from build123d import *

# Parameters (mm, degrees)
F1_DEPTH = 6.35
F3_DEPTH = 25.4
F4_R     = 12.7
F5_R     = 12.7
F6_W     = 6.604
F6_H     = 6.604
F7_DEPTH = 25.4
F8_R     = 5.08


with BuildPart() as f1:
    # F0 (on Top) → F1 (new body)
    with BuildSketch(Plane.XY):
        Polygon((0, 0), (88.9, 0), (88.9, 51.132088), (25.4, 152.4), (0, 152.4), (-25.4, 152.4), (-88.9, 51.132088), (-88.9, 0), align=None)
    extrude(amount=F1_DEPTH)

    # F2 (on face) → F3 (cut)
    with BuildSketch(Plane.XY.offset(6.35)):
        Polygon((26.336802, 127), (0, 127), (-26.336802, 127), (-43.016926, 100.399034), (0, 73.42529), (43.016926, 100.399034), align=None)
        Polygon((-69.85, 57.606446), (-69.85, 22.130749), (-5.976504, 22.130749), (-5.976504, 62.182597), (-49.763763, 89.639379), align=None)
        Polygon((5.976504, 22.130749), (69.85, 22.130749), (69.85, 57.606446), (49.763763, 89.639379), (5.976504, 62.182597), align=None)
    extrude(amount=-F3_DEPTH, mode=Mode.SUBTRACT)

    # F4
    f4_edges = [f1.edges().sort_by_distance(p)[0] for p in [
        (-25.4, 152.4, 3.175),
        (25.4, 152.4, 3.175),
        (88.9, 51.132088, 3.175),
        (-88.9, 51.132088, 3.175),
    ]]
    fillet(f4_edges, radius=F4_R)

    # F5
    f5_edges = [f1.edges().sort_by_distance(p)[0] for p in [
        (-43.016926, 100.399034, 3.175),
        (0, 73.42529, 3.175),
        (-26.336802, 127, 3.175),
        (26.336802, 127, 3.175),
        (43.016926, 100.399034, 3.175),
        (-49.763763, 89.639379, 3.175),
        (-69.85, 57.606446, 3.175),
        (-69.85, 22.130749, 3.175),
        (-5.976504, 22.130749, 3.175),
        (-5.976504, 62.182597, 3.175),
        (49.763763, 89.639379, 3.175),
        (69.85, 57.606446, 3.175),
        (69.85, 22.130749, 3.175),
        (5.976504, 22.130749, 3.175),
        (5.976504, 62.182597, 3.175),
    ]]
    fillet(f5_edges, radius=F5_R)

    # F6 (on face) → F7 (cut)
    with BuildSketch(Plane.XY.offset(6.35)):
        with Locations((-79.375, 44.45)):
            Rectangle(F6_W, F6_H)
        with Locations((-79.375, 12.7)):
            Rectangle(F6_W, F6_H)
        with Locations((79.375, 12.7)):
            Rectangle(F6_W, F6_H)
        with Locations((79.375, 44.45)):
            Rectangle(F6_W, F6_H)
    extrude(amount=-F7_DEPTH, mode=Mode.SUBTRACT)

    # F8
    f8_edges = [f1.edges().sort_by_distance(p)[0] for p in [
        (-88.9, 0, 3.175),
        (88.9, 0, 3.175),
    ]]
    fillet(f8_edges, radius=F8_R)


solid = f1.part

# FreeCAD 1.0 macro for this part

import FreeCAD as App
import Part
import Sketcher

V = App.Vector
Q = App.Units.Quantity


def edges_at(feature, points):
    """Names of the edges that pass closest to the given points."""
    edges = feature.Shape.Edges
    near = lambda p: min(range(len(edges)), key=lambda i: edges[i].distToShape(Part.Vertex(*p))[0])
    return sorted({f"Edge{near(p) + 1}" for p in points})

doc = App.newDocument("Part")
body = doc.addObject("PartDesign::Body", "Body")

# Sketch on XY plane
sketch1 = body.newObject("Sketcher::SketchObject", "Sketch")
sketch1.AttachmentSupport = (doc.getObject("XY_Plane"), [""])
sketch1.MapMode = "FlatFace"
sketch1.addGeometry([
    Part.LineSegment(V(89, 0, 0), V(89, 51, 0)),  # 0
    Part.LineSegment(V(89, 51, 0), V(25, 152, 0)),  # 1
    Part.LineSegment(V(25, 152, 0), V(-25, 152, 0)),  # 2
    Part.LineSegment(V(-25, 152, 0), V(-89, 51, 0)),  # 3
    Part.LineSegment(V(-89, 51, 0), V(-89, 0, 0)),  # 4
    Part.LineSegment(V(-89, 0, 0), V(89, 0, 0)),  # 5
], False)
sketch1.addConstraint([
    Sketcher.Constraint("Coincident", 0, 2, 1, 1),
    Sketcher.Constraint("Coincident", 1, 2, 2, 1),
    Sketcher.Constraint("Coincident", 2, 2, 3, 1),
    Sketcher.Constraint("Coincident", 3, 2, 4, 1),
    Sketcher.Constraint("Coincident", 4, 2, 5, 1),
    Sketcher.Constraint("Coincident", 5, 2, 0, 1),
    Sketcher.Constraint("Vertical", 0),
    Sketcher.Constraint("Horizontal", 2),
    Sketcher.Constraint("Vertical", 4),
    Sketcher.Constraint("Horizontal", 5),
    Sketcher.Constraint("Symmetric", 4, 2, 5, 2, -1, 1),
    Sketcher.Constraint("Horizontal", 0, 2, 3, 2),
    Sketcher.Constraint("Equal", 1, 3),
    Sketcher.Constraint("DistanceX", 2, 2, 2, 1, Q("2 in")),
    Sketcher.Constraint("DistanceX", 5, 1, 5, 2, Q("7 in")),
    Sketcher.Constraint("DistanceY", -1, 1, 1, 2, Q("6 in")),
    Sketcher.Constraint("DistanceY", 0, 1, 0, 2, 51.132088),
])
pad1 = body.newObject("PartDesign::Pad", "Pad")
pad1.Profile = sketch1
pad1.Length = Q("0.25 in")

# Sketch on XY plane
sketch2 = body.newObject("Sketcher::SketchObject", "Sketch001")
sketch2.AttachmentSupport = (doc.getObject("XY_Plane"), [""])
sketch2.MapMode = "FlatFace"
sketch2.AttachmentOffset = App.Placement(V(0, 0, 0.25 * 25.4), App.Rotation())
sketch2.addGeometry([
    Part.LineSegment(V(26, 127, 0), V(-26, 127, 0)),  # 0
    Part.LineSegment(V(-26, 127, 0), V(-43, 100, 0)),  # 1
    Part.LineSegment(V(-43, 100, 0), V(0, 73, 0)),  # 2
    Part.LineSegment(V(0, 73, 0), V(43, 100, 0)),  # 3
    Part.LineSegment(V(43, 100, 0), V(26, 127, 0)),  # 4
    Part.LineSegment(V(-70, 58, 0), V(-70, 22, 0)),  # 5
    Part.LineSegment(V(-70, 22, 0), V(-6, 22, 0)),  # 6
    Part.LineSegment(V(-6, 22, 0), V(-6, 62, 0)),  # 7
    Part.LineSegment(V(-6, 62, 0), V(-50, 90, 0)),  # 8
    Part.LineSegment(V(-50, 90, 0), V(-70, 58, 0)),  # 9
    Part.LineSegment(V(6, 22, 0), V(70, 22, 0)),  # 10
    Part.LineSegment(V(70, 22, 0), V(70, 58, 0)),  # 11
    Part.LineSegment(V(70, 58, 0), V(50, 90, 0)),  # 12
    Part.LineSegment(V(50, 90, 0), V(6, 62, 0)),  # 13
    Part.LineSegment(V(6, 62, 0), V(6, 22, 0)),  # 14
], False)
sketch2.addConstraint([
    Sketcher.Constraint("Coincident", 0, 2, 1, 1),
    Sketcher.Constraint("Coincident", 1, 2, 2, 1),
    Sketcher.Constraint("Coincident", 2, 2, 3, 1),
    Sketcher.Constraint("Coincident", 3, 2, 4, 1),
    Sketcher.Constraint("Coincident", 4, 2, 0, 1),
    Sketcher.Constraint("Coincident", 5, 2, 6, 1),
    Sketcher.Constraint("Coincident", 6, 2, 7, 1),
    Sketcher.Constraint("Coincident", 7, 2, 8, 1),
    Sketcher.Constraint("Coincident", 8, 2, 9, 1),
    Sketcher.Constraint("Coincident", 9, 2, 5, 1),
    Sketcher.Constraint("Coincident", 10, 2, 11, 1),
    Sketcher.Constraint("Coincident", 11, 2, 12, 1),
    Sketcher.Constraint("Coincident", 12, 2, 13, 1),
    Sketcher.Constraint("Coincident", 13, 2, 14, 1),
    Sketcher.Constraint("Coincident", 14, 2, 10, 1),
    Sketcher.Constraint("Horizontal", 0),
    Sketcher.Constraint("Vertical", 5),
    Sketcher.Constraint("Horizontal", 6),
    Sketcher.Constraint("Vertical", 7),
    Sketcher.Constraint("Horizontal", 10),
    Sketcher.Constraint("Vertical", 11),
    Sketcher.Constraint("Vertical", 14),
    Sketcher.Constraint("Symmetric", 1, 2, 3, 2, -2),
    Sketcher.Constraint("Symmetric", 5, 2, 10, 2, -2),
    Sketcher.Constraint("Symmetric", 8, 2, 12, 2, -2),
    Sketcher.Constraint("Symmetric", 7, 2, 13, 2, -2),
    Sketcher.Constraint("PointOnObject", 2, 2, -2),
    Sketcher.Constraint("Perpendicular", 1, 2),
    Sketcher.Constraint("Perpendicular", 3, 4),
    Sketcher.Constraint("Parallel", 2, 8),
    Sketcher.Constraint("Perpendicular", 8, 9),
    Sketcher.Constraint("Parallel", 4, 12),
    Sketcher.Constraint("DistanceY", -1, 1, 0, 2, Q("5 in")),
    Sketcher.Constraint("DistanceX", 5, 2, -1, 1, Q("2.75 in")),
    Sketcher.Constraint("Distance", 9, 37.809598),
    Sketcher.Constraint("DistanceX", 0, 2, -1, 1, 26.336802),
    Sketcher.Constraint("DistanceX", 0, 2, 6, 2, 20.360298),
    Sketcher.Constraint("Distance", 2, 50.774391),
    Sketcher.Constraint("DistanceY", 5, 2, 5, 1, 35.475697),
    Sketcher.Constraint("DistanceY", 7, 1, 7, 2, 40.051848),
    Sketcher.Constraint("DistanceY", -1, 1, 5, 2, 22.130749),
])
pocket1 = body.newObject("PartDesign::Pocket", "Pocket")
pocket1.Profile = sketch2
pocket1.Length = Q("1 in")
doc.recompute()

fillet = body.newObject("PartDesign::Fillet", "Fillet")
fillet.Base = (pocket1, edges_at(pocket1, [
    (-25.4, 152.4, 3.175),
    (25.4, 152.4, 3.175),
    (88.9, 51.132, 3.175),
    (-88.9, 51.132, 3.175),
]))
fillet.Radius = Q("0.5 in")
doc.recompute()

fillet2 = body.newObject("PartDesign::Fillet", "Fillet001")
fillet2.Base = (fillet, edges_at(fillet, [
    (-43.017, 100.399, 3.175),
    (0, 73.425, 3.175),
    (-26.337, 127, 3.175),
    (26.337, 127, 3.175),
    (43.017, 100.399, 3.175),
    (-49.764, 89.639, 3.175),
    (-69.85, 57.606, 3.175),
    (-69.85, 22.131, 3.175),
    (-5.977, 22.131, 3.175),
    (-5.977, 62.183, 3.175),
    (49.764, 89.639, 3.175),
    (69.85, 57.606, 3.175),
    (69.85, 22.131, 3.175),
    (5.977, 22.131, 3.175),
    (5.977, 62.183, 3.175),
]))
fillet2.Radius = Q("0.5 in")

# Sketch on XY plane
sketch3 = body.newObject("Sketcher::SketchObject", "Sketch002")
sketch3.AttachmentSupport = (doc.getObject("XY_Plane"), [""])
sketch3.MapMode = "FlatFace"
sketch3.AttachmentOffset = App.Placement(V(0, 0, 0.25 * 25.4), App.Rotation())
sketch3.addGeometry([
    Part.LineSegment(V(-83, 48, 0), V(-83, 41, 0)),  # 0
    Part.LineSegment(V(-83, 41, 0), V(-76, 41, 0)),  # 1
    Part.LineSegment(V(-76, 41, 0), V(-76, 48, 0)),  # 2
    Part.LineSegment(V(-76, 48, 0), V(-83, 48, 0)),  # 3
    Part.LineSegment(V(-83, 16, 0), V(-83, 9, 0)),  # 4
    Part.LineSegment(V(-83, 9, 0), V(-76, 9, 0)),  # 5
    Part.LineSegment(V(-76, 9, 0), V(-76, 16, 0)),  # 6
    Part.LineSegment(V(-76, 16, 0), V(-83, 16, 0)),  # 7
    Part.LineSegment(V(76, 16, 0), V(76, 9, 0)),  # 8
    Part.LineSegment(V(76, 9, 0), V(83, 9, 0)),  # 9
    Part.LineSegment(V(83, 9, 0), V(83, 16, 0)),  # 10
    Part.LineSegment(V(83, 16, 0), V(76, 16, 0)),  # 11
    Part.LineSegment(V(76, 48, 0), V(76, 41, 0)),  # 12
    Part.LineSegment(V(76, 41, 0), V(83, 41, 0)),  # 13
    Part.LineSegment(V(83, 41, 0), V(83, 48, 0)),  # 14
    Part.LineSegment(V(83, 48, 0), V(76, 48, 0)),  # 15
], False)
sketch3.addConstraint([
    Sketcher.Constraint("Coincident", 0, 2, 1, 1),
    Sketcher.Constraint("Coincident", 1, 2, 2, 1),
    Sketcher.Constraint("Coincident", 2, 2, 3, 1),
    Sketcher.Constraint("Coincident", 3, 2, 0, 1),
    Sketcher.Constraint("Coincident", 4, 2, 5, 1),
    Sketcher.Constraint("Coincident", 5, 2, 6, 1),
    Sketcher.Constraint("Coincident", 6, 2, 7, 1),
    Sketcher.Constraint("Coincident", 7, 2, 4, 1),
    Sketcher.Constraint("Coincident", 8, 2, 9, 1),
    Sketcher.Constraint("Coincident", 9, 2, 10, 1),
    Sketcher.Constraint("Coincident", 10, 2, 11, 1),
    Sketcher.Constraint("Coincident", 11, 2, 8, 1),
    Sketcher.Constraint("Coincident", 12, 2, 13, 1),
    Sketcher.Constraint("Coincident", 13, 2, 14, 1),
    Sketcher.Constraint("Coincident", 14, 2, 15, 1),
    Sketcher.Constraint("Coincident", 15, 2, 12, 1),
    Sketcher.Constraint("Vertical", 0),
    Sketcher.Constraint("Horizontal", 1),
    Sketcher.Constraint("Vertical", 2),
    Sketcher.Constraint("Horizontal", 3),
    Sketcher.Constraint("Vertical", 4),
    Sketcher.Constraint("Horizontal", 5),
    Sketcher.Constraint("Vertical", 6),
    Sketcher.Constraint("Horizontal", 7),
    Sketcher.Constraint("Vertical", 8),
    Sketcher.Constraint("Horizontal", 9),
    Sketcher.Constraint("Vertical", 10),
    Sketcher.Constraint("Horizontal", 11),
    Sketcher.Constraint("Vertical", 12),
    Sketcher.Constraint("Horizontal", 13),
    Sketcher.Constraint("Vertical", 14),
    Sketcher.Constraint("Horizontal", 15),
    Sketcher.Constraint("Symmetric", 5, 2, 8, 2, -2),
    Sketcher.Constraint("Symmetric", 7, 2, 10, 2, -2),
    Sketcher.Constraint("Symmetric", 1, 2, 12, 2, -2),
    Sketcher.Constraint("Symmetric", 3, 2, 14, 2, -2),
    Sketcher.Constraint("Vertical", 3, 2, 4, 2),
    Sketcher.Constraint("Vertical", 2, 2, 5, 2),
    Sketcher.Constraint("Equal", 15, 0),
    Sketcher.Constraint("Equal", 2, 4),
    Sketcher.Constraint("DistanceX", 1, 1, 1, 2, Q("0.26 in")),
    Sketcher.Constraint("DistanceY", -1, 1, 0, 2, Q("1.62 in")),
    Sketcher.Constraint("DistanceY", -1, 1, 4, 2, Q("0.37 in")),
    Sketcher.Constraint("DistanceX", 5, 2, 8, 2, Q("5.99 in")),
])
pocket2 = body.newObject("PartDesign::Pocket", "Pocket001")
pocket2.Profile = sketch3
pocket2.Length = Q("1 in")
doc.recompute()

fillet3 = body.newObject("PartDesign::Fillet", "Fillet002")
fillet3.Base = (pocket2, edges_at(pocket2, [(-88.9, 0, 3.175), (88.9, 0, 3.175)]))
fillet3.Radius = Q("0.2 in")

doc.recompute()
